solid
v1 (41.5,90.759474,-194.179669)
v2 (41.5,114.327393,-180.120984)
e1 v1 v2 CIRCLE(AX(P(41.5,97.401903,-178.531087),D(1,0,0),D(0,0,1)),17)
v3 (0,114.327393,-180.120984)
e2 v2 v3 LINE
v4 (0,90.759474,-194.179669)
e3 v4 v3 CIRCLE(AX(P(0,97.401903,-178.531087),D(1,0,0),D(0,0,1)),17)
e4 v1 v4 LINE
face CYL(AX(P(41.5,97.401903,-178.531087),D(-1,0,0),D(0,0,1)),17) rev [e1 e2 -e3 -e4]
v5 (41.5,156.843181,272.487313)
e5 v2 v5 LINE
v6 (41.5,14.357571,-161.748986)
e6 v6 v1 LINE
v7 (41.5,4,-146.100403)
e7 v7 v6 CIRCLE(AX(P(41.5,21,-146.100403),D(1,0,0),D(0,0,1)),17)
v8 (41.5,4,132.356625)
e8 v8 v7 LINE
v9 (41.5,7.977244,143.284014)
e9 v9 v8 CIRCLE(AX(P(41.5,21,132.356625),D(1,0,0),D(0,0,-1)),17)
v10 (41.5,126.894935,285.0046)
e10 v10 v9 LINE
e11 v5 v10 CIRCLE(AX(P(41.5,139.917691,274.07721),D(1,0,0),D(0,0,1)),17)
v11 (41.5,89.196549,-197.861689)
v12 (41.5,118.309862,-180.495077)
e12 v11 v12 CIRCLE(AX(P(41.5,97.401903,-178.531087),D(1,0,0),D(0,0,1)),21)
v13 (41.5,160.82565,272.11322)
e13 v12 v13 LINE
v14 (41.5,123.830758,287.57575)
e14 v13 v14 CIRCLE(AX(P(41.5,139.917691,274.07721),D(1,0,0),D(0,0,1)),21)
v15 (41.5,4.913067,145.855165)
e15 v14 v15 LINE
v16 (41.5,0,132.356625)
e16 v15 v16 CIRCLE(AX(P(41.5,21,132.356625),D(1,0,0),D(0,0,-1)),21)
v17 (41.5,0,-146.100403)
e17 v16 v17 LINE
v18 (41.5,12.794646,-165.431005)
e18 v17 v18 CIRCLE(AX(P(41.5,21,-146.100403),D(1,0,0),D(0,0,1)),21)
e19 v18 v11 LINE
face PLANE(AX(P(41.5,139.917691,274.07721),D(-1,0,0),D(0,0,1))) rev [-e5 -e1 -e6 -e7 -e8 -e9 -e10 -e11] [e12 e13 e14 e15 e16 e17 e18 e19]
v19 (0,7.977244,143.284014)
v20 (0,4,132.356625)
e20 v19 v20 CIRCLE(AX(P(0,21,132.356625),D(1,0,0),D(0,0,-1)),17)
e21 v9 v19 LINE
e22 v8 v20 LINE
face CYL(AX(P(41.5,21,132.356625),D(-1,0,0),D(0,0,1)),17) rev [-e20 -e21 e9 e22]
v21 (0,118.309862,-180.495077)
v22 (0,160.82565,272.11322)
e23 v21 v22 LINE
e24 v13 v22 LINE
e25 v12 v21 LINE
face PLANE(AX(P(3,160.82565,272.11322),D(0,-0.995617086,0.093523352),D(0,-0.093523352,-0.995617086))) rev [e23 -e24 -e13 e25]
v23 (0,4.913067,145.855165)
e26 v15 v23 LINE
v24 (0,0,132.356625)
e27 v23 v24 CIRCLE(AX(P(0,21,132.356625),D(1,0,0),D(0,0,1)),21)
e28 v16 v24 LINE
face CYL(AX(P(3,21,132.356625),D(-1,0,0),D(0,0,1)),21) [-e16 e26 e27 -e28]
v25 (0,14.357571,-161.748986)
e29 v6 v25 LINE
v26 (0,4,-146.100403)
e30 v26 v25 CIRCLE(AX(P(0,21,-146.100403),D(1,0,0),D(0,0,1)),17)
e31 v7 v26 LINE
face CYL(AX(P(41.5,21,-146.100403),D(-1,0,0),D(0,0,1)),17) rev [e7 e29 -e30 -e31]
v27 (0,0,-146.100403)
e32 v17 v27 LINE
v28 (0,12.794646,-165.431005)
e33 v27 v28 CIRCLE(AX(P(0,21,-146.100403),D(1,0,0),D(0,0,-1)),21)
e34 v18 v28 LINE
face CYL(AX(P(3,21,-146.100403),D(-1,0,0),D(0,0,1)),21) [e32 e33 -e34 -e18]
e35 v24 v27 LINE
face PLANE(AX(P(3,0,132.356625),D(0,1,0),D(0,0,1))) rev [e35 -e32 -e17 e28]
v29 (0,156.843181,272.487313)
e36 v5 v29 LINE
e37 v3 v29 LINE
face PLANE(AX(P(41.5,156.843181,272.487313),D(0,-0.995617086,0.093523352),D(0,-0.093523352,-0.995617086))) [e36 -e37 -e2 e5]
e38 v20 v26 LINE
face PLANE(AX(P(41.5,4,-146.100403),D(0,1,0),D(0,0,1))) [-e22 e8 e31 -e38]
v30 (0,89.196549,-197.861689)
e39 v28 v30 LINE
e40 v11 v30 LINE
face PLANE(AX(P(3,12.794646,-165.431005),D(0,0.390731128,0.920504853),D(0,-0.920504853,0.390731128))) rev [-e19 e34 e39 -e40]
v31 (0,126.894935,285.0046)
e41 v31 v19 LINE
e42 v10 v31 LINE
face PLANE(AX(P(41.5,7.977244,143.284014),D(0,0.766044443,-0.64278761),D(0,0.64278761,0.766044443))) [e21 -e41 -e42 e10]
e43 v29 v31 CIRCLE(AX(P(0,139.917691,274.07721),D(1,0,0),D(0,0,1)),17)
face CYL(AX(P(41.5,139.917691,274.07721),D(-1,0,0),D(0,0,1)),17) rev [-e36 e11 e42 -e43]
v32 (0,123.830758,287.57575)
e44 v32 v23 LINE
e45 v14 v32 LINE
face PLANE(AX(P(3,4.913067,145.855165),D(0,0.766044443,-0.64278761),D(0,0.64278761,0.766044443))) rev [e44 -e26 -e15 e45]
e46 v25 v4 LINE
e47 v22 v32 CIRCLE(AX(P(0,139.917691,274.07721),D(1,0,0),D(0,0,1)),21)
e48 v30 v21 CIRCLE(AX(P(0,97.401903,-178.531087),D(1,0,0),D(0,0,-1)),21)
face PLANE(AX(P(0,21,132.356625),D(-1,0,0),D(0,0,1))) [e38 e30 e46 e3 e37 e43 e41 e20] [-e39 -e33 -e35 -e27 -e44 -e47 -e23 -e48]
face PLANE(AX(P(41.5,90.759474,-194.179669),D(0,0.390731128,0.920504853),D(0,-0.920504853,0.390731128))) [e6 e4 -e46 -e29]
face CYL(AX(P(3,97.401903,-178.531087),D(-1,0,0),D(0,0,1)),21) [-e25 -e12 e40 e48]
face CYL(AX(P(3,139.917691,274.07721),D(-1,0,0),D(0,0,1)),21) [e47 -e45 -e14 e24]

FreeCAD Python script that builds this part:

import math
import FreeCAD as App
import Part
import Sketcher

V = App.Vector
Q = App.Units.Quantity

doc = App.newDocument("Part")
params = doc.addObject("Spreadsheet::Sheet", "Params")
for row, (alias, value) in enumerate([
    ("sketch1_radius", "21 mm"),
    ("sketch1_length", "83 mm"),
    ("pad1_length", "3 mm"),
    ("sketch2_radius", "21 mm"),
    ("sketch2_radius2", "17 mm"),
    ("sketch2_length", "83 mm"),
    ("pad2_length", "38.5 mm"),
    ("sketch3_radius", "17 mm"),
    ("sketch3_length", "83 mm"),
    ("pocket1_length", "3 mm"),
], start=1):
    params.set(f"A{row}", alias)
    params.set(f"B{row}", "=" + value)
    params.setAlias(f"B{row}", alias)

body = doc.addObject("PartDesign::Body", "Body")

sketch1 = body.newObject("Sketcher::SketchObject", "Sketch")
sketch1.AttachmentSupport = (doc.getObject("YZ_Plane"), [""])
sketch1.MapMode = "FlatFace"
sketch1.addGeometry([
    Part.LineSegment(V(0, 132.356625, 0), V(0, -146.100403, 0)),
    Part.ArcOfCircle(Part.Circle(V(21, -146.100403, 0), V(0, 0, 1), 21), math.radians(-180), math.radians(-113)),
    Part.LineSegment(V(12.794646, -165.431005, 0), V(89.196549, -197.861689, 0)),
    Part.ArcOfCircle(Part.Circle(V(97.401903, -178.531087, 0), V(0, 0, 1), 21), math.radians(-113), math.radians(-5.366336)),
    Part.LineSegment(V(118.309862, -180.495077, 0), V(160.82565, 272.11322, 0)),
    Part.ArcOfCircle(Part.Circle(V(139.917691, 274.07721, 0), V(0, 0, 1), 21), math.radians(-5.366336), math.radians(140)),
    Part.LineSegment(V(123.830758, 287.57575, 0), V(4.913067, 145.855165, 0)),
    Part.ArcOfCircle(Part.Circle(V(21, 132.356625, 0), V(0, 0, 1), 21), math.radians(140), math.radians(180)),
], False)
sketch1.addConstraint([
    Sketcher.Constraint("Tangent", 0, 2, 1, 1),
    Sketcher.Constraint("Tangent", 1, 2, 2, 1),
    Sketcher.Constraint("Tangent", 2, 2, 3, 1),
    Sketcher.Constraint("Tangent", 3, 2, 4, 1),
    Sketcher.Constraint("Tangent", 4, 2, 5, 1),
    Sketcher.Constraint("Tangent", 5, 2, 6, 1),
    Sketcher.Constraint("Tangent", 6, 2, 7, 1),
    Sketcher.Constraint("Tangent", 7, 2, 0, 1),
    Sketcher.Constraint("Vertical", 0),
    Sketcher.Constraint("Equal", 1, 3),
    Sketcher.Constraint("Equal", 3, 5),
    Sketcher.Constraint("Equal", 5, 7),
    Sketcher.Constraint("PointOnObject", 0, 2, -2),
    Sketcher.Constraint("Radius", 1, 21.0),
    Sketcher.Constraint("Angle", 2, Q("-23 deg")),
    Sketcher.Constraint("Angle", 6, Q("-130 deg")),
    Sketcher.Constraint("Distance", 2, 83.0),
    Sketcher.Constraint("DistanceY", 0, 2, 0, 1, 278.457028),
    Sketcher.Constraint("DistanceX", -1, 1, 5, 3, 139.917691),
    Sketcher.Constraint("DistanceY", -1, 1, 5, 3, 274.07721),
])
sketch1.setExpression("Constraints[13]", "Params.sketch1_radius")
sketch1.setExpression("Constraints[16]", "Params.sketch1_length")
pad1 = body.newObject("PartDesign::Pad", "Pad")
pad1.Profile = sketch1
pad1.setExpression("Length", "Params.pad1_length")

sketch2 = body.newObject("Sketcher::SketchObject", "Sketch001")
sketch2.AttachmentSupport = (doc.getObject("YZ_Plane"), [""])
sketch2.MapMode = "FlatFace"
sketch2.AttachmentOffset = App.Placement(V(0, 0, 3), App.Rotation())
sketch2.addGeometry([
    Part.LineSegment(V(118.309862, -180.495077, 0), V(160.82565, 272.11322, 0)),
    Part.ArcOfCircle(Part.Circle(V(139.917691, 274.07721, 0), V(0, 0, 1), 21), math.radians(-5.366336), math.radians(140)),
    Part.LineSegment(V(123.830758, 287.57575, 0), V(4.913067, 145.855165, 0)),
    Part.ArcOfCircle(Part.Circle(V(21, 132.356625, 0), V(0, 0, 1), 21), math.radians(140), math.radians(180)),
    Part.LineSegment(V(0, 132.356625, 0), V(0, -146.100403, 0)),
    Part.ArcOfCircle(Part.Circle(V(21, -146.100403, 0), V(0, 0, 1), 21), math.radians(-180), math.radians(-113)),
    Part.LineSegment(V(12.794646, -165.431005, 0), V(89.196549, -197.861689, 0)),
    Part.ArcOfCircle(Part.Circle(V(97.401903, -178.531087, 0), V(0, 0, 1), 21), math.radians(-113), math.radians(-5.366336)),
    Part.LineSegment(V(156.843181, 272.487313, 0), V(114.327393, -180.120984, 0)),
    Part.ArcOfCircle(Part.Circle(V(97.401903, -178.531087, 0), V(0, 0, 1), 17), math.radians(-113), math.radians(-5.366336)),
    Part.LineSegment(V(90.759474, -194.179669, 0), V(14.357571, -161.748986, 0)),
    Part.ArcOfCircle(Part.Circle(V(21, -146.100403, 0), V(0, 0, 1), 17), math.radians(-180), math.radians(-113)),
    Part.LineSegment(V(4, -146.100403, 0), V(4, 132.356625, 0)),
    Part.ArcOfCircle(Part.Circle(V(21, 132.356625, 0), V(0, 0, 1), 17), math.radians(140), math.radians(180)),
    Part.LineSegment(V(7.977244, 143.284014, 0), V(126.894935, 285.0046, 0)),
    Part.ArcOfCircle(Part.Circle(V(139.917691, 274.07721, 0), V(0, 0, 1), 17), math.radians(-5.366336), math.radians(140)),
], False)
sketch2.addConstraint([
    Sketcher.Constraint("Tangent", 0, 2, 1, 1),
    Sketcher.Constraint("Tangent", 1, 2, 2, 1),
    Sketcher.Constraint("Tangent", 2, 2, 3, 1),
    Sketcher.Constraint("Tangent", 3, 2, 4, 1),
    Sketcher.Constraint("Tangent", 4, 2, 5, 1),
    Sketcher.Constraint("Tangent", 5, 2, 6, 1),
    Sketcher.Constraint("Tangent", 6, 2, 7, 1),
    Sketcher.Constraint("Tangent", 7, 2, 0, 1),
    Sketcher.Constraint("Tangent", 8, 2, 9, 2),
    Sketcher.Constraint("Tangent", 9, 1, 10, 1),
    Sketcher.Constraint("Tangent", 10, 2, 11, 2),
    Sketcher.Constraint("Tangent", 11, 1, 12, 1),
    Sketcher.Constraint("Tangent", 12, 2, 13, 2),
    Sketcher.Constraint("Tangent", 13, 1, 14, 1),
    Sketcher.Constraint("Tangent", 14, 2, 15, 2),
    Sketcher.Constraint("Tangent", 15, 1, 8, 1),
    Sketcher.Constraint("Vertical", 4),
    Sketcher.Constraint("Vertical", 12),
    Sketcher.Constraint("Coincident", 9, 3, 7, 3),
    Sketcher.Constraint("Coincident", 11, 3, 5, 3),
    Sketcher.Constraint("Coincident", 13, 3, 3, 3),
    Sketcher.Constraint("Coincident", 15, 3, 1, 3),
    Sketcher.Constraint("Equal", 1, 3),
    Sketcher.Constraint("Equal", 3, 5),
    Sketcher.Constraint("Equal", 5, 7),
    Sketcher.Constraint("Equal", 9, 11),
    Sketcher.Constraint("Equal", 13, 15),
    Sketcher.Constraint("PointOnObject", 3, 2, -2),
    Sketcher.Constraint("Radius", 1, 21.0),
    Sketcher.Constraint("Radius", 9, 17.0),
    Sketcher.Constraint("Angle", 2, Q("-130 deg")),
    Sketcher.Constraint("Angle", 6, Q("-23 deg")),
    Sketcher.Constraint("Distance", 6, 83.0),
    Sketcher.Constraint("DistanceY", 4, 2, 4, 1, 278.457028),
    Sketcher.Constraint("DistanceY", -1, 1, 14, 2, 285.0046),
    Sketcher.Constraint("DistanceX", -1, 1, 1, 3, 139.917691),
])
sketch2.setExpression("Constraints[28]", "Params.sketch2_radius")
sketch2.setExpression("Constraints[29]", "Params.sketch2_radius2")
sketch2.setExpression("Constraints[32]", "Params.sketch2_length")
pad2 = body.newObject("PartDesign::Pad", "Pad001")
pad2.Profile = sketch2
pad2.setExpression("Length", "Params.pad2_length")

sketch3 = body.newObject("Sketcher::SketchObject", "Sketch002")
sketch3.AttachmentSupport = (doc.getObject("YZ_Plane"), [""])
sketch3.MapMode = "FlatFace"
sketch3.AttachmentOffset = App.Placement(V(0, 0, 3), App.Rotation())
sketch3.addGeometry([
    Part.LineSegment(V(114.327393, -180.120984, 0), V(156.843181, 272.487313, 0)),
    Part.ArcOfCircle(Part.Circle(V(139.917691, 274.07721, 0), V(0, 0, 1), 17), math.radians(-5.366336), math.radians(140)),
    Part.LineSegment(V(126.894935, 285.0046, 0), V(7.977244, 143.284014, 0)),
    Part.ArcOfCircle(Part.Circle(V(21, 132.356625, 0), V(0, 0, 1), 17), math.radians(140), math.radians(180)),
    Part.LineSegment(V(4, 132.356625, 0), V(4, -146.100403, 0)),
    Part.ArcOfCircle(Part.Circle(V(21, -146.100403, 0), V(0, 0, 1), 17), math.radians(-180), math.radians(-113)),
    Part.LineSegment(V(14.357571, -161.748986, 0), V(90.759474, -194.179669, 0)),
    Part.ArcOfCircle(Part.Circle(V(97.401903, -178.531087, 0), V(0, 0, 1), 17), math.radians(-113), math.radians(-5.366336)),
], False)
sketch3.addConstraint([
    Sketcher.Constraint("Tangent", 0, 2, 1, 1),
    Sketcher.Constraint("Tangent", 1, 2, 2, 1),
    Sketcher.Constraint("Tangent", 2, 2, 3, 1),
    Sketcher.Constraint("Tangent", 3, 2, 4, 1),
    Sketcher.Constraint("Tangent", 4, 2, 5, 1),
    Sketcher.Constraint("Tangent", 5, 2, 6, 1),
    Sketcher.Constraint("Tangent", 6, 2, 7, 1),
    Sketcher.Constraint("Tangent", 7, 2, 0, 1),
    Sketcher.Constraint("Vertical", 4),
    Sketcher.Constraint("Equal", 1, 3),
    Sketcher.Constraint("Equal", 3, 5),
    Sketcher.Constraint("Equal", 5, 7),
    Sketcher.Constraint("Radius", 1, 17.0),
    Sketcher.Constraint("Angle", 2, Q("-130 deg")),
    Sketcher.Constraint("Angle", 6, Q("-23 deg")),
    Sketcher.Constraint("Distance", 6, 83.0),
    Sketcher.Constraint("DistanceX", -1, 1, 3, 3, 21.0),
    Sketcher.Constraint("DistanceY", 4, 2, 4, 1, 278.457028),
    Sketcher.Constraint("DistanceY", -1, 1, 1, 2, 285.0046),
    Sketcher.Constraint("DistanceY", 7, 3, 0, 2, 451.0184),
])
sketch3.setExpression("Constraints[12]", "Params.sketch3_radius")
sketch3.setExpression("Constraints[15]", "Params.sketch3_length")
pocket1 = body.newObject("PartDesign::Pocket", "Pocket")
pocket1.Profile = sketch3
pocket1.setExpression("Length", "Params.pocket1_length")

doc.recompute()
